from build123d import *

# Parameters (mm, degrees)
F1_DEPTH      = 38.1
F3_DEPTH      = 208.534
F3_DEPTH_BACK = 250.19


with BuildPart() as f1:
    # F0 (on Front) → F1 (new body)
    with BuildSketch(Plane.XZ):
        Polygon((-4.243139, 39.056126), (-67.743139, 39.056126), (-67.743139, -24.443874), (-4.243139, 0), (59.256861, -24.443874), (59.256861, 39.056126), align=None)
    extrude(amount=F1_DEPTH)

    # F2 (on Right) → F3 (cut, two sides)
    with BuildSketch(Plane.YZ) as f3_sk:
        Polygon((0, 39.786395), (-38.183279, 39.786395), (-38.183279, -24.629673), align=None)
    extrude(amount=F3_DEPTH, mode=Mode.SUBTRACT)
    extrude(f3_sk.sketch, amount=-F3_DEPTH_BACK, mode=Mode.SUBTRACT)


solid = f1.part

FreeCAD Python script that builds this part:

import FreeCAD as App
import Part
import Sketcher
Q = App.Units.Quantity

doc = App.newDocument("Part")
params = doc.addObject("Spreadsheet::Sheet", "Params")
for row, (alias, value) in enumerate([
    ("sketch1_width", "5 in"),
    ("sketch1_height", "2.5 in"),
    ("pad1_length", "1.5 in"),
], start=1):
    params.set(f"A{row}", alias)
    params.set(f"B{row}", "=" + value)
    params.setAlias(f"B{row}", alias)

body = doc.addObject("PartDesign::Body", "Body")

sketch1 = doc.addObject("Sketcher::SketchObject", "Sketch")
body.addObject(sketch1)
sketch1.AttachmentSupport = (doc.XZ_Plane, [""])
sketch1.MapMode = "FlatFace"
sketch1.addGeometry([
    Part.LineSegment(App.Vector(-68, 39, 0), App.Vector(-68, -24, 0)),
    Part.LineSegment(App.Vector(-68, -24, 0), App.Vector(-4, 0, 0)),
    Part.LineSegment(App.Vector(-4, 0, 0), App.Vector(59, -24, 0)),
    Part.LineSegment(App.Vector(59, -24, 0), App.Vector(59, 39, 0)),
    Part.LineSegment(App.Vector(59, 39, 0), App.Vector(-68, 39, 0)),
], False)
sketch1.addConstraint([
    Sketcher.Constraint("Coincident", 0, 2, 1, 1),
    Sketcher.Constraint("Coincident", 1, 2, 2, 1),
    Sketcher.Constraint("Coincident", 2, 2, 3, 1),
    Sketcher.Constraint("Coincident", 3, 2, 4, 1),
    Sketcher.Constraint("Coincident", 4, 2, 0, 1),
    Sketcher.Constraint("Vertical", 0),
    Sketcher.Constraint("Vertical", 3),
    Sketcher.Constraint("Horizontal", 4),
    Sketcher.Constraint("PointOnObject", 1, 2, -1),
    Sketcher.Constraint("Horizontal", 0, 2, 2, 2),
    Sketcher.Constraint("Equal", 1, 2),
    Sketcher.Constraint("DistanceX", 4, 2, 4, 1, Q("5 in")),
    Sketcher.Constraint("DistanceY", 0, 2, 0, 1, Q("2.5 in")),
    Sketcher.Constraint("Distance", 1, 68.042288),
    Sketcher.Constraint("DistanceX", 0, 2, -1, 1, 67.743139),
])
sketch1.setExpression("Constraints[11]", "Params.sketch1_width")
sketch1.setExpression("Constraints[12]", "Params.sketch1_height")
pad1 = doc.addObject("PartDesign::Pad", "Pad")
body.addObject(pad1)
pad1.Profile = sketch1
pad1.setExpression("Length", "Params.pad1_length")

sketch2 = doc.addObject("Sketcher::SketchObject", "Sketch001")
body.addObject(sketch2)
sketch2.AttachmentSupport = (doc.YZ_Plane, [""])
sketch2.MapMode = "FlatFace"
sketch2.addGeometry([
    Part.LineSegment(App.Vector(0, 40, 0), App.Vector(-38, 40, 0)),
    Part.LineSegment(App.Vector(-38, 40, 0), App.Vector(-38, -25, 0)),
    Part.LineSegment(App.Vector(-38, -25, 0), App.Vector(0, 40, 0)),
], False)
sketch2.addConstraint([
    Sketcher.Constraint("Coincident", 0, 2, 1, 1),
    Sketcher.Constraint("Coincident", 1, 2, 2, 1),
    Sketcher.Constraint("Coincident", 2, 2, 0, 1),
    Sketcher.Constraint("Horizontal", 0),
    Sketcher.Constraint("Vertical", 1),
    Sketcher.Constraint("PointOnObject", 2, 2, -2),
    Sketcher.Constraint("DistanceX", 0, 2, 0, 1, 38.183279),
    Sketcher.Constraint("DistanceY", 1, 2, 1, 1, 64.416068),
    Sketcher.Constraint("DistanceY", -1, 1, 0, 2, 39.786395),
])
pocket1 = doc.addObject("PartDesign::Pocket", "Pocket")
body.addObject(pocket1)
pocket1.Profile = sketch2
pocket1.Type = "ThroughAll"
pocket1.Midplane = True

doc.recompute()
